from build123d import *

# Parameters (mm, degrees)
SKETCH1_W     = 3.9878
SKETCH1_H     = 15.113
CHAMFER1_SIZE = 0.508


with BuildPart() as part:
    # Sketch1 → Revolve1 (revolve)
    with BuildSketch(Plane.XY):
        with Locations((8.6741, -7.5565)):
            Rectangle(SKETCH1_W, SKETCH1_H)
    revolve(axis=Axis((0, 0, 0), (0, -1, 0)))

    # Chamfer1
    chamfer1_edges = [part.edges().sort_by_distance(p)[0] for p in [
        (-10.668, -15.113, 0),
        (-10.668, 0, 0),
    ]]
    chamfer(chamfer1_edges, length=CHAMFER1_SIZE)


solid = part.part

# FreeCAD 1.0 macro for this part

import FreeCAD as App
import Part
import Sketcher
Q = App.Units.Quantity


def edges_at(feature, points):
    """Names of the edges that pass closest to the given points."""
    edges = feature.Shape.Edges
    near = lambda p: min(range(len(edges)), key=lambda i: edges[i].distToShape(Part.Vertex(*p))[0])
    return sorted({f"Edge{near(p) + 1}" for p in points})

doc = App.newDocument("Part")
params = doc.addObject("Spreadsheet::Sheet", "Params")
for row, (alias, value) in enumerate([
    ("sketch1_width", "0.157 in"),
    ("sketch1_height", "0.595 in"),
    ("revolution_angle", "360 deg"),
    ("chamfer_size", "0.02 in"),
], start=1):
    params.set(f"A{row}", alias)
    params.set(f"B{row}", "=" + value)
    params.setAlias(f"B{row}", alias)

body = doc.addObject("PartDesign::Body", "Body")

# Sketch on XY plane
sketch1 = body.newObject("Sketcher::SketchObject", "Sketch")
sketch1.AttachmentSupport = (doc.getObject("XY_Plane"), [""])
sketch1.MapMode = "FlatFace"
sketch1.addGeometry(Part.LineSegment(App.Vector(6.6802, 0, 0), App.Vector(6.6802, -15.113, 0)), False)
sketch1.addGeometry(Part.LineSegment(App.Vector(6.6802, -15.113, 0), App.Vector(10.668, -15.113, 0)), False)
sketch1.addGeometry(Part.LineSegment(App.Vector(10.668, -15.113, 0), App.Vector(10.668, 0, 0)), False)
sketch1.addGeometry(Part.LineSegment(App.Vector(10.668, 0, 0), App.Vector(6.6802, 0, 0)), False)
sketch1.addConstraint(Sketcher.Constraint("Coincident", 0, 2, 1, 1))
sketch1.addConstraint(Sketcher.Constraint("Coincident", 1, 2, 2, 1))
sketch1.addConstraint(Sketcher.Constraint("Coincident", 2, 2, 3, 1))
sketch1.addConstraint(Sketcher.Constraint("Coincident", 3, 2, 0, 1))
sketch1.addConstraint(Sketcher.Constraint("Vertical", 0))
sketch1.addConstraint(Sketcher.Constraint("Horizontal", 1))
sketch1.addConstraint(Sketcher.Constraint("Vertical", 2))
sketch1.addConstraint(Sketcher.Constraint("Horizontal", 3))
sketch1.addConstraint(Sketcher.Constraint("PointOnObject", 2, 2, -1))
sketch1.addConstraint(Sketcher.Constraint("DistanceX", 1, 1, 1, 2, Q("0.157 in")))
sketch1.addConstraint(Sketcher.Constraint("DistanceY", 0, 2, 0, 1, Q("0.595 in")))
sketch1.addConstraint(Sketcher.Constraint("DistanceX", -1, 1, 1, 2, Q("0.42 in")))
sketch1.setExpression("Constraints[9]", "Params.sketch1_width")
sketch1.setExpression("Constraints[10]", "Params.sketch1_height")
revolution = body.newObject("PartDesign::Revolution", "Revolution")
revolution.Profile = sketch1
revolution.ReferenceAxis = (sketch1, ["V_Axis"])
revolution.setExpression("Angle", "Params.revolution_angle")
doc.recompute()

chamfer = body.newObject("PartDesign::Chamfer", "Chamfer")
chamfer.Base = (revolution, edges_at(revolution, [(-10.668, -15.113, 0), (-10.668, 0, 0)]))
chamfer.setExpression("Size", "Params.chamfer_size")

doc.recompute()
